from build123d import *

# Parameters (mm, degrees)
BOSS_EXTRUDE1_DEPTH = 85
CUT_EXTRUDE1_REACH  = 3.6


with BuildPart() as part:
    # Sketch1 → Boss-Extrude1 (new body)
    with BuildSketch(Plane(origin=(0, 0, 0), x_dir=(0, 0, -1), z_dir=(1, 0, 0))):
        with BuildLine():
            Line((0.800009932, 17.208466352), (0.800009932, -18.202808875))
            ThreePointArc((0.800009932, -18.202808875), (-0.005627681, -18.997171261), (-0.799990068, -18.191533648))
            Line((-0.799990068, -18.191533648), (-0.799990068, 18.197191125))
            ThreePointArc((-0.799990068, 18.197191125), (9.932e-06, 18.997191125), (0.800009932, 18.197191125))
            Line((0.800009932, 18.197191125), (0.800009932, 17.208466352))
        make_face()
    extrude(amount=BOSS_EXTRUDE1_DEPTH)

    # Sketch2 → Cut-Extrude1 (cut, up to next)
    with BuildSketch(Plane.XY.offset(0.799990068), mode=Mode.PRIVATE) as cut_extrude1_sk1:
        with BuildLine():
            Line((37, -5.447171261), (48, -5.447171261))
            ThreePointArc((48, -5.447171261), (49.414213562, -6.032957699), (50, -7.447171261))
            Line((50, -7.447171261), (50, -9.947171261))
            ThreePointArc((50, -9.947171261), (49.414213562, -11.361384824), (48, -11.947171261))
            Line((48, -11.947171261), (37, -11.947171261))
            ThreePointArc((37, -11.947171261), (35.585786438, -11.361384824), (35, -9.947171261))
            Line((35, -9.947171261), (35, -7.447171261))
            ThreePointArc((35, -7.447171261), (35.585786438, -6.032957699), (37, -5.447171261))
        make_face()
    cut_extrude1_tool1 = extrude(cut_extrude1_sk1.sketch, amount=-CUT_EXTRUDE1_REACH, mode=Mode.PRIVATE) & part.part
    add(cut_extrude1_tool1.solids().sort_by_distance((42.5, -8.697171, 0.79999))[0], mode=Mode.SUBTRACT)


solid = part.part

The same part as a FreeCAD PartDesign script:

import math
import FreeCAD as App
import Part
import Sketcher
from FreeCAD import Vector
Q = App.Units.Quantity

doc = App.newDocument("Part")
body = doc.addObject("PartDesign::Body", "Body")

sketch1 = doc.addObject("Sketcher::SketchObject", "Sketch")
body.addObject(sketch1)
sketch1.AttachmentSupport = (doc.YZ_Plane, [""])
sketch1.MapMode = "FlatFace"
sketch1.addGeometry([
    Part.ArcOfCircle(Part.Circle(Vector(-18.197171, -0.00001, 0), Vector(0, 0, 1), 0.80002), math.radians(89.596242), math.radians(269.596242)),
    Part.LineSegment(Vector(-18.202809, -0.80001, 0), Vector(18.197191, -0.80001, 0)),
    Part.ArcOfCircle(Part.Circle(Vector(18.197191, -0.00001, 0), Vector(0, 0, 1), 0.8), math.radians(-90), math.radians(90)),
    Part.LineSegment(Vector(18.197191, 0.79999, 0), Vector(-18.191534, 0.79999, 0)),
], False)
sketch1.addConstraint([
    Sketcher.Constraint("Coincident", 0, 2, 1, 1),
    Sketcher.Constraint("Tangent", 1, 2, 2, 1),
    Sketcher.Constraint("Tangent", 2, 2, 3, 1),
    Sketcher.Constraint("Coincident", 3, 2, 0, 1),
    Sketcher.Constraint("Horizontal", 1),
    Sketcher.Constraint("Horizontal", 3),
    Sketcher.Constraint("Horizontal", 0, 3, 2, 3),
    Sketcher.Constraint("Radius", 2, Q("0.8 mm")),
    Sketcher.Constraint("DistanceX", 1, 1, 1, 2, Q("36.4 mm")),
    Sketcher.Constraint("Radius", 0, Q("0.80002 mm")),
    Sketcher.Constraint("DistanceX", 0, 3, -1, 1, Q("18.197171 mm")),
    Sketcher.Constraint("DistanceY", 0, 2, -1, 1, Q("0.80001 mm")),
])
pad1 = doc.addObject("PartDesign::Pad", "Pad")
body.addObject(pad1)
pad1.Profile = sketch1
pad1.Length = 85

sketch2 = doc.addObject("Sketcher::SketchObject", "Sketch001")
body.addObject(sketch2)
sketch2.AttachmentSupport = (doc.XY_Plane, [""])
sketch2.MapMode = "FlatFace"
sketch2.AttachmentOffset = App.Placement(Vector(0, 0, 0.79999), App.Rotation())
sketch2.addGeometry([
    Part.LineSegment(Vector(48, -5.4, 0), Vector(37, -5.4, 0)),
    Part.ArcOfCircle(Part.Circle(Vector(37, -7.4, 0), Vector(0, 0, 1), 2), math.radians(90), math.radians(180)),
    Part.LineSegment(Vector(35, -7.4, 0), Vector(35, -9.9, 0)),
    Part.ArcOfCircle(Part.Circle(Vector(37, -9.9, 0), Vector(0, 0, 1), 2), math.radians(180), math.radians(270)),
    Part.LineSegment(Vector(37, -11.9, 0), Vector(48, -11.9, 0)),
    Part.ArcOfCircle(Part.Circle(Vector(48, -9.9, 0), Vector(0, 0, 1), 2), math.radians(-90), math.radians(0)),
    Part.LineSegment(Vector(50, -9.9, 0), Vector(50, -7.4, 0)),
    Part.ArcOfCircle(Part.Circle(Vector(48, -7.4, 0), Vector(0, 0, 1), 2), math.radians(0), math.radians(90)),
], False)
sketch2.addConstraint([
    Sketcher.Constraint("Tangent", 0, 2, 1, 1),
    Sketcher.Constraint("Tangent", 1, 2, 2, 1),
    Sketcher.Constraint("Tangent", 2, 2, 3, 1),
    Sketcher.Constraint("Tangent", 3, 2, 4, 1),
    Sketcher.Constraint("Tangent", 4, 2, 5, 1),
    Sketcher.Constraint("Tangent", 5, 2, 6, 1),
    Sketcher.Constraint("Tangent", 6, 2, 7, 1),
    Sketcher.Constraint("Tangent", 7, 2, 0, 1),
    Sketcher.Constraint("Horizontal", 0),
    Sketcher.Constraint("Vertical", 2),
    Sketcher.Constraint("Horizontal", 4),
    Sketcher.Constraint("Vertical", 6),
    Sketcher.Constraint("Equal", 1, 3),
    Sketcher.Constraint("Equal", 3, 5),
    Sketcher.Constraint("Equal", 5, 7),
    Sketcher.Constraint("Radius", 1, Q("2 mm")),
    Sketcher.Constraint("DistanceX", 0, 2, 0, 1, Q("11 mm")),
    Sketcher.Constraint("DistanceY", 2, 2, 2, 1, Q("2.5 mm")),
    Sketcher.Constraint("DistanceX", -1, 1, 1, 3, Q("37 mm")),
    Sketcher.Constraint("DistanceY", 1, 3, -1, 1, Q("7.447171 mm")),
])
pocket1 = doc.addObject("PartDesign::Pocket", "Pocket")
body.addObject(pocket1)
pocket1.Profile = sketch2
pocket1.Type = "UpToFirst"

doc.recompute()
